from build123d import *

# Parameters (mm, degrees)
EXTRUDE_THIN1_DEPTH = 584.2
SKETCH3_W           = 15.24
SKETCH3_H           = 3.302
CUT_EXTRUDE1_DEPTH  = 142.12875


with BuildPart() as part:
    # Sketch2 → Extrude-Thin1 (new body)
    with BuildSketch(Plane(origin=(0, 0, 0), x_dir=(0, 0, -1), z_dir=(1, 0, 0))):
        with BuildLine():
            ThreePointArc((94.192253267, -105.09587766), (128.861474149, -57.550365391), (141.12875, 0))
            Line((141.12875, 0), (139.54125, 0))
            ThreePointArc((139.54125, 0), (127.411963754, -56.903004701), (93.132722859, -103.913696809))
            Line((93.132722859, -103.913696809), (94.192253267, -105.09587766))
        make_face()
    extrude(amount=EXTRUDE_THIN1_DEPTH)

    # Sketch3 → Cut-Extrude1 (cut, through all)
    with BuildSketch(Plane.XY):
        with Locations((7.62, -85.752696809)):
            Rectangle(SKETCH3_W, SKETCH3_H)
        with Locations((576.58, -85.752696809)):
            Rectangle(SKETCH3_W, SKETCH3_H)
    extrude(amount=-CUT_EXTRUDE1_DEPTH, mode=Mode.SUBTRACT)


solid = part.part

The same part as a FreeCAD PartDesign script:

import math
import FreeCAD as App
import Part
import Sketcher

V = App.Vector
Q = App.Units.Quantity


def add_polygon(sketch, points):
    """Adds a closed chain of lines whose ends are joined by coincident constraints."""
    first, n = sketch.GeometryCount, len(points)
    for a, b in zip(points, points[1:] + points[:1]):
        sketch.addGeometry(Part.LineSegment(App.Vector(*a, 0), App.Vector(*b, 0)), False)
    for i in range(n):
        sketch.addConstraint(Sketcher.Constraint("Coincident", first + i, 2, first + (i + 1) % n, 1))

doc = App.newDocument("Part")
params = doc.addObject("Spreadsheet::Sheet", "Params")
for row, (alias, value) in enumerate([
    ("sketch1_height", "0.0625 in"),
    ("pad1_length", "23 in"),
    ("sketch2_width", "0.6 in"),
    ("sketch2_height", "0.13 in"),
], start=1):
    params.set(f"A{row}", alias)
    params.set(f"B{row}", "=" + value)
    params.setAlias(f"B{row}", alias)

body = doc.addObject("PartDesign::Body", "Body")

sketch1 = body.newObject("Sketcher::SketchObject", "Sketch")
sketch1.AttachmentSupport = (doc.getObject("YZ_Plane"), [""])
sketch1.MapMode = "FlatFace"
sketch1.addGeometry([
    Part.ArcOfCircle(Part.Circle(V(0, 0, 0), V(0, 0, 1), 141.1), math.radians(-138), math.radians(-90)),
    Part.LineSegment(V(0, -141.1, 0), V(0, -139.5, 0)),
    Part.ArcOfCircle(Part.Circle(V(0, 0, 0), V(0, 0, 1), 139.5), math.radians(-138), math.radians(-90)),
    Part.LineSegment(V(-103.9, -93.1, 0), V(-105.1, -94.2, 0)),
], False)
sketch1.addConstraint([
    Sketcher.Constraint("Coincident", 0, 2, 1, 1),
    Sketcher.Constraint("Coincident", 1, 2, 2, 2),
    Sketcher.Constraint("Coincident", 2, 1, 3, 1),
    Sketcher.Constraint("Coincident", 3, 2, 0, 1),
    Sketcher.Constraint("Vertical", 1),
    Sketcher.Constraint("Coincident", 0, 3, -1, 1),
    Sketcher.Constraint("Coincident", 2, 3, -1, 1),
    Sketcher.Constraint("PointOnObject", 0, 2, -2),
    Sketcher.Constraint("DistanceY", 1, 1, 1, 2, Q("0.0625 in")),
    Sketcher.Constraint("Radius", 0, Q("141.12875 mm")),
    Sketcher.Constraint("DistanceX", 3, 2, 2, 1, Q("1.182181 mm")),
    Sketcher.Constraint("DistanceX", 2, 1, -1, 1, Q("103.913697 mm")),
])
sketch1.setExpression("Constraints[8]", "Params.sketch1_height")
pad1 = body.newObject("PartDesign::Pad", "Pad")
pad1.Profile = sketch1
pad1.setExpression("Length", "Params.pad1_length")

sketch2 = body.newObject("Sketcher::SketchObject", "Sketch001")
sketch2.AttachmentSupport = (doc.getObject("XY_Plane"), [""])
sketch2.MapMode = "FlatFace"
add_polygon(sketch2, [(0, -84.1), (0, -87.4), (15.2, -87.4), (15.2, -84.1)])
add_polygon(sketch2, [(569, -84.1), (569, -87.4), (584.2, -87.4), (584.2, -84.1)])
sketch2.addConstraint([
    Sketcher.Constraint("Vertical", 0),
    Sketcher.Constraint("Horizontal", 1),
    Sketcher.Constraint("Vertical", 2),
    Sketcher.Constraint("Horizontal", 3),
    Sketcher.Constraint("Vertical", 4),
    Sketcher.Constraint("Horizontal", 5),
    Sketcher.Constraint("Vertical", 6),
    Sketcher.Constraint("Horizontal", 7),
    Sketcher.Constraint("PointOnObject", 0, 2, -2),
    Sketcher.Constraint("Horizontal", 1, 2, 4, 2),
    Sketcher.Constraint("Horizontal", 3, 2, 6, 2),
    Sketcher.Constraint("Equal", 3, 5),
    Sketcher.Constraint("DistanceX", 1, 1, 1, 2, Q("0.6 in")),
    Sketcher.Constraint("DistanceX", -1, 1, 5, 2, Q("23 in")),
    Sketcher.Constraint("DistanceY", 0, 2, 0, 1, Q("0.13 in")),
    Sketcher.Constraint("DistanceY", 0, 2, -1, 1, Q("87.403697 mm")),
])
sketch2.setExpression("Constraints[20]", "Params.sketch2_width")
sketch2.setExpression("Constraints[22]", "Params.sketch2_height")
pocket1 = body.newObject("PartDesign::Pocket", "Pocket")
pocket1.Profile = sketch2
pocket1.Type = "ThroughAll"

doc.recompute()
